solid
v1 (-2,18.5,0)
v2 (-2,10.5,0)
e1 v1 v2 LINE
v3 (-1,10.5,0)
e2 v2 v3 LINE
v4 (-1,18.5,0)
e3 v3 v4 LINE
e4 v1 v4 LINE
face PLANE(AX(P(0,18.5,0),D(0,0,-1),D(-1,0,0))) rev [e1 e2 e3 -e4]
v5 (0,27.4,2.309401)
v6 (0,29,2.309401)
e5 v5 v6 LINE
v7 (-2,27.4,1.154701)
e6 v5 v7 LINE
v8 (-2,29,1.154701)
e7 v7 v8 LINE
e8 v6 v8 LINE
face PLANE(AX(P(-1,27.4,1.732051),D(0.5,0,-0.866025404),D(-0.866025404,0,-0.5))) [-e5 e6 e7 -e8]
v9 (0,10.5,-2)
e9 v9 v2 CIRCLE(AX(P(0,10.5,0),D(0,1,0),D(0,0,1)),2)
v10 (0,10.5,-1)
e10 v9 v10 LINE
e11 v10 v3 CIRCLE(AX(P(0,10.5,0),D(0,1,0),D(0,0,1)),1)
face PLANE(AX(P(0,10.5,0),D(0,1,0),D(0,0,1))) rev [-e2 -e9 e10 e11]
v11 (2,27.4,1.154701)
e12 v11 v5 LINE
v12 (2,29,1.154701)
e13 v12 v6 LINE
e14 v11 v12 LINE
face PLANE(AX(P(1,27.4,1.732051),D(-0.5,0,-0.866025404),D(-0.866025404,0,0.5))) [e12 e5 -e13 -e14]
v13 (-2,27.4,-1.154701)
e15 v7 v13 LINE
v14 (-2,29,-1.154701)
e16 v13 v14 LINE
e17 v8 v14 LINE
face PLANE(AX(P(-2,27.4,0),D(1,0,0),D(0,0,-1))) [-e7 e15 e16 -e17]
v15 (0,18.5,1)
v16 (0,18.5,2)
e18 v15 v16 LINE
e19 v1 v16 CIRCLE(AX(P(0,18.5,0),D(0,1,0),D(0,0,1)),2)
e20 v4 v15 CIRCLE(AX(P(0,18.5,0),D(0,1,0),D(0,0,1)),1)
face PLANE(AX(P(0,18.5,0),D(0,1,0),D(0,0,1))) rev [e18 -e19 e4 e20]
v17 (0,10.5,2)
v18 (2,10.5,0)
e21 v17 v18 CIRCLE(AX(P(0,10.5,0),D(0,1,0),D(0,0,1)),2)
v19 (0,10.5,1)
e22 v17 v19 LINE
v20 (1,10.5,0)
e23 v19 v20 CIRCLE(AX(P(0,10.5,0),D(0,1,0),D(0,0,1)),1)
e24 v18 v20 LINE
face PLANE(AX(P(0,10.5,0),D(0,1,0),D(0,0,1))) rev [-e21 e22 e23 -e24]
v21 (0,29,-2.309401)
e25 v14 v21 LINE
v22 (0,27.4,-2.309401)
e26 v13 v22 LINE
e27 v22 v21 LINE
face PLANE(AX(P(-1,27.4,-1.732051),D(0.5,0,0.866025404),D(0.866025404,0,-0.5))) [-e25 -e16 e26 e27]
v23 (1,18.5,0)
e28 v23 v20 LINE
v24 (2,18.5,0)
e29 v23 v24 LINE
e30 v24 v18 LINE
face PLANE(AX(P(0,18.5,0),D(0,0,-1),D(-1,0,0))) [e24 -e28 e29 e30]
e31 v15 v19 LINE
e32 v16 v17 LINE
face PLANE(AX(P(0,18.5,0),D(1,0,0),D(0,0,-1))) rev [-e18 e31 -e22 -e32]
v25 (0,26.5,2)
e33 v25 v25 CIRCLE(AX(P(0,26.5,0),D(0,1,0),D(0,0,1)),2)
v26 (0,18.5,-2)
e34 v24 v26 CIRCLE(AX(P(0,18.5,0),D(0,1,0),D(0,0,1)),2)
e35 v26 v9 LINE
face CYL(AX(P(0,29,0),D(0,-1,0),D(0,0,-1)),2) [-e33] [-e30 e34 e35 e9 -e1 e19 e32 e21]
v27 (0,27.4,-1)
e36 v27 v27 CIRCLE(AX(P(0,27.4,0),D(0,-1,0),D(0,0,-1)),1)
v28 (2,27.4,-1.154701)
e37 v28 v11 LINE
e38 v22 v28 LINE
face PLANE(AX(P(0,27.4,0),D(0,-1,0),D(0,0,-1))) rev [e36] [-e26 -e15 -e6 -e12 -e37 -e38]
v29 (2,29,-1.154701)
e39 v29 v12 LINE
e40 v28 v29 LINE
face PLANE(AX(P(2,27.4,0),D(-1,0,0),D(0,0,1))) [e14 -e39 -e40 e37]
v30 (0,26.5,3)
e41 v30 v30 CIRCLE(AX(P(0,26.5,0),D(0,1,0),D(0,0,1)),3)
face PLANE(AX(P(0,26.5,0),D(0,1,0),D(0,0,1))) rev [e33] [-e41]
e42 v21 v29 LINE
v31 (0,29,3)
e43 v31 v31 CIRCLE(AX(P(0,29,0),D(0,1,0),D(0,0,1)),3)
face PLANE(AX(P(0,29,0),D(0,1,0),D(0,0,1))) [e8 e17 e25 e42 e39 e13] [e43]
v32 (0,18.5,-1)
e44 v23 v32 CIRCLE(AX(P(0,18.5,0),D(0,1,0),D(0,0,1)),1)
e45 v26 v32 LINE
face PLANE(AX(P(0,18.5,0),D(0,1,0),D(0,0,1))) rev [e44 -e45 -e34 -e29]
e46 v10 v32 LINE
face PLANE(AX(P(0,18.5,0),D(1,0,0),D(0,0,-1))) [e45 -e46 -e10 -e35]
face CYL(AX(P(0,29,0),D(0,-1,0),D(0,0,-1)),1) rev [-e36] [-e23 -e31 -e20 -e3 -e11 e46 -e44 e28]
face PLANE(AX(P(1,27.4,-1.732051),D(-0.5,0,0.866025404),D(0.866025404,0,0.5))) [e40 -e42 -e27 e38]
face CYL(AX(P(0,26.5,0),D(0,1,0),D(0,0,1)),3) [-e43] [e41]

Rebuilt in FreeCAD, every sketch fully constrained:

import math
import FreeCAD as App
import Part
import Sketcher
Q = App.Units.Quantity


def add_polygon(sketch, points):
    """Adds a closed chain of lines whose ends are joined by coincident constraints."""
    first, n = sketch.GeometryCount, len(points)
    for a, b in zip(points, points[1:] + points[:1]):
        sketch.addGeometry(Part.LineSegment(App.Vector(*a, 0), App.Vector(*b, 0)), False)
    for i in range(n):
        sketch.addConstraint(Sketcher.Constraint("Coincident", first + i, 2, first + (i + 1) % n, 1))

doc = App.newDocument("Part")
params = doc.addObject("Spreadsheet::Sheet", "Params")
for row, (alias, value) in enumerate([
    ("sketch1_diameter", "4 mm"),
    ("sketch1_diameter2", "2 mm"),
    ("pad1_length", "29 mm"),
    ("sketch2_diameter", "6 mm"),
    ("sketch2_diameter2", "4 mm"),
    ("pad2_length", "2.5 mm"),
    ("sketch3_diameter", "6 mm"),
    ("sketch3_diameter2", "4 mm"),
    ("pad3_length", "2.5 mm"),
    ("sketch4_diameter", "3.2 mm"),
    ("pocket1_length", "1.5 mm"),
    ("pocket2_length", "1.6 mm"),
    ("sketch6_diameter", "6 mm"),
    ("pocket3_length", "10.5 mm"),
    ("sketch7_radius", "2 mm"),
    ("pocket4_length", "8 mm"),
], start=1):
    params.set(f"A{row}", alias)
    params.set(f"B{row}", "=" + value)
    params.setAlias(f"B{row}", alias)

body = doc.addObject("PartDesign::Body", "Body")

# Sketch on XZ plane
sketch1 = body.newObject("Sketcher::SketchObject", "Sketch")
sketch1.AttachmentSupport = (doc.getObject("XZ_Plane"), [""])
sketch1.MapMode = "FlatFace"
sketch1.addGeometry(Part.Circle(App.Vector(0, 0, 0), App.Vector(0, 0, 1), 2), False)
sketch1.addGeometry(Part.Circle(App.Vector(0, 0, 0), App.Vector(0, 0, 1), 1), False)
sketch1.addConstraint(Sketcher.Constraint("Coincident", 0, 3, -1, 1))
sketch1.addConstraint(Sketcher.Constraint("Coincident", 1, 3, -1, 1))
sketch1.addConstraint(Sketcher.Constraint("Diameter", 0, 4.0))
sketch1.addConstraint(Sketcher.Constraint("Diameter", 1, 2.0))
sketch1.setExpression("Constraints[2]", "Params.sketch1_diameter")
sketch1.setExpression("Constraints[3]", "Params.sketch1_diameter2")
pad1 = body.newObject("PartDesign::Pad", "Pad")
pad1.Profile = sketch1
pad1.setExpression("Length", "Params.pad1_length")
pad1.Reversed = True

# Sketch on XZ plane
sketch2 = body.newObject("Sketcher::SketchObject", "Sketch001")
sketch2.AttachmentSupport = (doc.getObject("XZ_Plane"), [""])
sketch2.MapMode = "FlatFace"
sketch2.addGeometry(Part.Circle(App.Vector(0, 0, 0), App.Vector(0, 0, 1), 3), False)
sketch2.addGeometry(Part.Circle(App.Vector(0, 0, 0), App.Vector(0, 0, 1), 2), False)
sketch2.addConstraint(Sketcher.Constraint("Coincident", 0, 3, -1, 1))
sketch2.addConstraint(Sketcher.Constraint("Coincident", 1, 3, -1, 1))
sketch2.addConstraint(Sketcher.Constraint("Diameter", 0, 6.0))
sketch2.addConstraint(Sketcher.Constraint("Diameter", 1, 4.0))
sketch2.setExpression("Constraints[2]", "Params.sketch2_diameter")
sketch2.setExpression("Constraints[3]", "Params.sketch2_diameter2")
pad2 = body.newObject("PartDesign::Pad", "Pad001")
pad2.Profile = sketch2
pad2.setExpression("Length", "Params.pad2_length")
pad2.Reversed = True

# Sketch on XZ plane
sketch3 = body.newObject("Sketcher::SketchObject", "Sketch002")
sketch3.AttachmentSupport = (doc.getObject("XZ_Plane"), [""])
sketch3.MapMode = "FlatFace"
sketch3.AttachmentOffset = App.Placement(App.Vector(0, 0, -26.5), App.Rotation())
sketch3.addGeometry(Part.Circle(App.Vector(0, 0, 0), App.Vector(0, 0, 1), 3), False)
sketch3.addGeometry(Part.Circle(App.Vector(0, 0, 0), App.Vector(0, 0, 1), 2), False)
sketch3.addConstraint(Sketcher.Constraint("Coincident", 0, 3, -1, 1))
sketch3.addConstraint(Sketcher.Constraint("Coincident", 1, 3, -1, 1))
sketch3.addConstraint(Sketcher.Constraint("Diameter", 0, 6.0))
sketch3.addConstraint(Sketcher.Constraint("Diameter", 1, 4.0))
sketch3.setExpression("Constraints[2]", "Params.sketch3_diameter")
sketch3.setExpression("Constraints[3]", "Params.sketch3_diameter2")
pad3 = body.newObject("PartDesign::Pad", "Pad002")
pad3.Profile = sketch3
pad3.setExpression("Length", "Params.pad3_length")
pad3.Reversed = True

# Sketch on XZ plane
sketch4 = body.newObject("Sketcher::SketchObject", "Sketch003")
sketch4.AttachmentSupport = (doc.getObject("XZ_Plane"), [""])
sketch4.MapMode = "FlatFace"
sketch4.addGeometry(Part.Circle(App.Vector(0, 0, 0), App.Vector(0, 0, 1), 1.6), False)
sketch4.addConstraint(Sketcher.Constraint("Coincident", 0, 3, -1, 1))
sketch4.addConstraint(Sketcher.Constraint("Diameter", 0, 3.2))
sketch4.setExpression("Constraints[1]", "Params.sketch4_diameter")
pocket1 = body.newObject("PartDesign::Pocket", "Pocket")
pocket1.Profile = sketch4
pocket1.setExpression("Length", "Params.pocket1_length")

# Sketch on XZ plane
sketch5 = body.newObject("Sketcher::SketchObject", "Sketch004")
sketch5.AttachmentSupport = (doc.getObject("XZ_Plane"), [""])
sketch5.MapMode = "FlatFace"
sketch5.AttachmentOffset = App.Placement(App.Vector(0, 0, -29), App.Rotation())
add_polygon(sketch5, [(0, 2.3), (2, 1.2), (2, -1.2), (0, -2.3), (-2, -1.2), (-2, 1.2)])  # lines 0-5
sketch5.addConstraint(Sketcher.Constraint("Vertical", 1))
sketch5.addConstraint(Sketcher.Constraint("Vertical", 4))
sketch5.addConstraint(Sketcher.Constraint("Symmetric", 0, 2, 3, 2, -1, 1))
sketch5.addConstraint(Sketcher.Constraint("Symmetric", 2, 2, 5, 2, -1, 1))
sketch5.addConstraint(Sketcher.Constraint("PointOnObject", 2, 2, -2))
sketch5.addConstraint(Sketcher.Constraint("Parallel", 2, 5))
sketch5.addConstraint(Sketcher.Constraint("Horizontal", 1, 2, 3, 2))
sketch5.addConstraint(Sketcher.Constraint("Angle", 0, Q("-30 deg")))
sketch5.addConstraint(Sketcher.Constraint("DistanceX", -1, 1, 0, 2, 2.0))
sketch5.addConstraint(Sketcher.Constraint("DistanceY", 1, 2, 1, 1, 2.309401))
pocket2 = body.newObject("PartDesign::Pocket", "Pocket001")
pocket2.Profile = sketch5
pocket2.setExpression("Length", "Params.pocket2_length")
pocket2.Reversed = True

# Sketch on XZ plane
sketch6 = body.newObject("Sketcher::SketchObject", "Sketch005")
sketch6.AttachmentSupport = (doc.getObject("XZ_Plane"), [""])
sketch6.MapMode = "FlatFace"
sketch6.addGeometry(Part.Circle(App.Vector(0, 0, 0), App.Vector(0, 0, 1), 3), False)
sketch6.addConstraint(Sketcher.Constraint("Coincident", 0, 3, -1, 1))
sketch6.addConstraint(Sketcher.Constraint("Diameter", 0, 6.0))
sketch6.setExpression("Constraints[1]", "Params.sketch6_diameter")
pocket3 = body.newObject("PartDesign::Pocket", "Pocket002")
pocket3.Profile = sketch6
pocket3.setExpression("Length", "Params.pocket3_length")

# Sketch on XZ plane
sketch7 = body.newObject("Sketcher::SketchObject", "Sketch006")
sketch7.AttachmentSupport = (doc.getObject("XZ_Plane"), [""])
sketch7.MapMode = "FlatFace"
sketch7.AttachmentOffset = App.Placement(App.Vector(0, 0, -10.5), App.Rotation())
sketch7.addGeometry(Part.LineSegment(App.Vector(0, 0, 0), App.Vector(2, 0, 0)), False)
sketch7.addGeometry(Part.ArcOfCircle(Part.Circle(App.Vector(0, 0, 0), App.Vector(0, 0, 1), 2), math.radians(-90), math.radians(0)), False)
sketch7.addGeometry(Part.LineSegment(App.Vector(0, -2, 0), App.Vector(0, 0, 0)), False)
sketch7.addGeometry(Part.LineSegment(App.Vector(0, 2, 0), App.Vector(0, 0, 0)), False)
sketch7.addGeometry(Part.LineSegment(App.Vector(0, 0, 0), App.Vector(-2, 0, 0)), False)
sketch7.addGeometry(Part.ArcOfCircle(Part.Circle(App.Vector(0, 0, 0), App.Vector(0, 0, 1), 2), math.radians(90), math.radians(180)), False)
sketch7.addConstraint(Sketcher.Constraint("Coincident", 0, 2, 1, 2))
sketch7.addConstraint(Sketcher.Constraint("Coincident", 1, 1, 2, 1))
sketch7.addConstraint(Sketcher.Constraint("Coincident", 2, 2, 0, 1))
sketch7.addConstraint(Sketcher.Constraint("Coincident", 3, 2, 4, 1))
sketch7.addConstraint(Sketcher.Constraint("Coincident", 4, 2, 5, 2))
sketch7.addConstraint(Sketcher.Constraint("Coincident", 5, 1, 3, 1))
sketch7.addConstraint(Sketcher.Constraint("Horizontal", 0))
sketch7.addConstraint(Sketcher.Constraint("Vertical", 2))
sketch7.addConstraint(Sketcher.Constraint("Vertical", 3))
sketch7.addConstraint(Sketcher.Constraint("Horizontal", 4))
sketch7.addConstraint(Sketcher.Constraint("Coincident", 1, 3, -1, 1))
sketch7.addConstraint(Sketcher.Constraint("Coincident", 5, 3, -1, 1))
sketch7.addConstraint(Sketcher.Constraint("Coincident", 2, 2, -1, 1))
sketch7.addConstraint(Sketcher.Constraint("Coincident", 3, 2, -1, 1))
sketch7.addConstraint(Sketcher.Constraint("Equal", 1, 5))
sketch7.addConstraint(Sketcher.Constraint("Radius", 1, 2.0))
sketch7.setExpression("Constraints[15]", "Params.sketch7_radius")
pocket4 = body.newObject("PartDesign::Pocket", "Pocket003")
pocket4.Profile = sketch7
pocket4.setExpression("Length", "Params.pocket4_length")

doc.recompute()
